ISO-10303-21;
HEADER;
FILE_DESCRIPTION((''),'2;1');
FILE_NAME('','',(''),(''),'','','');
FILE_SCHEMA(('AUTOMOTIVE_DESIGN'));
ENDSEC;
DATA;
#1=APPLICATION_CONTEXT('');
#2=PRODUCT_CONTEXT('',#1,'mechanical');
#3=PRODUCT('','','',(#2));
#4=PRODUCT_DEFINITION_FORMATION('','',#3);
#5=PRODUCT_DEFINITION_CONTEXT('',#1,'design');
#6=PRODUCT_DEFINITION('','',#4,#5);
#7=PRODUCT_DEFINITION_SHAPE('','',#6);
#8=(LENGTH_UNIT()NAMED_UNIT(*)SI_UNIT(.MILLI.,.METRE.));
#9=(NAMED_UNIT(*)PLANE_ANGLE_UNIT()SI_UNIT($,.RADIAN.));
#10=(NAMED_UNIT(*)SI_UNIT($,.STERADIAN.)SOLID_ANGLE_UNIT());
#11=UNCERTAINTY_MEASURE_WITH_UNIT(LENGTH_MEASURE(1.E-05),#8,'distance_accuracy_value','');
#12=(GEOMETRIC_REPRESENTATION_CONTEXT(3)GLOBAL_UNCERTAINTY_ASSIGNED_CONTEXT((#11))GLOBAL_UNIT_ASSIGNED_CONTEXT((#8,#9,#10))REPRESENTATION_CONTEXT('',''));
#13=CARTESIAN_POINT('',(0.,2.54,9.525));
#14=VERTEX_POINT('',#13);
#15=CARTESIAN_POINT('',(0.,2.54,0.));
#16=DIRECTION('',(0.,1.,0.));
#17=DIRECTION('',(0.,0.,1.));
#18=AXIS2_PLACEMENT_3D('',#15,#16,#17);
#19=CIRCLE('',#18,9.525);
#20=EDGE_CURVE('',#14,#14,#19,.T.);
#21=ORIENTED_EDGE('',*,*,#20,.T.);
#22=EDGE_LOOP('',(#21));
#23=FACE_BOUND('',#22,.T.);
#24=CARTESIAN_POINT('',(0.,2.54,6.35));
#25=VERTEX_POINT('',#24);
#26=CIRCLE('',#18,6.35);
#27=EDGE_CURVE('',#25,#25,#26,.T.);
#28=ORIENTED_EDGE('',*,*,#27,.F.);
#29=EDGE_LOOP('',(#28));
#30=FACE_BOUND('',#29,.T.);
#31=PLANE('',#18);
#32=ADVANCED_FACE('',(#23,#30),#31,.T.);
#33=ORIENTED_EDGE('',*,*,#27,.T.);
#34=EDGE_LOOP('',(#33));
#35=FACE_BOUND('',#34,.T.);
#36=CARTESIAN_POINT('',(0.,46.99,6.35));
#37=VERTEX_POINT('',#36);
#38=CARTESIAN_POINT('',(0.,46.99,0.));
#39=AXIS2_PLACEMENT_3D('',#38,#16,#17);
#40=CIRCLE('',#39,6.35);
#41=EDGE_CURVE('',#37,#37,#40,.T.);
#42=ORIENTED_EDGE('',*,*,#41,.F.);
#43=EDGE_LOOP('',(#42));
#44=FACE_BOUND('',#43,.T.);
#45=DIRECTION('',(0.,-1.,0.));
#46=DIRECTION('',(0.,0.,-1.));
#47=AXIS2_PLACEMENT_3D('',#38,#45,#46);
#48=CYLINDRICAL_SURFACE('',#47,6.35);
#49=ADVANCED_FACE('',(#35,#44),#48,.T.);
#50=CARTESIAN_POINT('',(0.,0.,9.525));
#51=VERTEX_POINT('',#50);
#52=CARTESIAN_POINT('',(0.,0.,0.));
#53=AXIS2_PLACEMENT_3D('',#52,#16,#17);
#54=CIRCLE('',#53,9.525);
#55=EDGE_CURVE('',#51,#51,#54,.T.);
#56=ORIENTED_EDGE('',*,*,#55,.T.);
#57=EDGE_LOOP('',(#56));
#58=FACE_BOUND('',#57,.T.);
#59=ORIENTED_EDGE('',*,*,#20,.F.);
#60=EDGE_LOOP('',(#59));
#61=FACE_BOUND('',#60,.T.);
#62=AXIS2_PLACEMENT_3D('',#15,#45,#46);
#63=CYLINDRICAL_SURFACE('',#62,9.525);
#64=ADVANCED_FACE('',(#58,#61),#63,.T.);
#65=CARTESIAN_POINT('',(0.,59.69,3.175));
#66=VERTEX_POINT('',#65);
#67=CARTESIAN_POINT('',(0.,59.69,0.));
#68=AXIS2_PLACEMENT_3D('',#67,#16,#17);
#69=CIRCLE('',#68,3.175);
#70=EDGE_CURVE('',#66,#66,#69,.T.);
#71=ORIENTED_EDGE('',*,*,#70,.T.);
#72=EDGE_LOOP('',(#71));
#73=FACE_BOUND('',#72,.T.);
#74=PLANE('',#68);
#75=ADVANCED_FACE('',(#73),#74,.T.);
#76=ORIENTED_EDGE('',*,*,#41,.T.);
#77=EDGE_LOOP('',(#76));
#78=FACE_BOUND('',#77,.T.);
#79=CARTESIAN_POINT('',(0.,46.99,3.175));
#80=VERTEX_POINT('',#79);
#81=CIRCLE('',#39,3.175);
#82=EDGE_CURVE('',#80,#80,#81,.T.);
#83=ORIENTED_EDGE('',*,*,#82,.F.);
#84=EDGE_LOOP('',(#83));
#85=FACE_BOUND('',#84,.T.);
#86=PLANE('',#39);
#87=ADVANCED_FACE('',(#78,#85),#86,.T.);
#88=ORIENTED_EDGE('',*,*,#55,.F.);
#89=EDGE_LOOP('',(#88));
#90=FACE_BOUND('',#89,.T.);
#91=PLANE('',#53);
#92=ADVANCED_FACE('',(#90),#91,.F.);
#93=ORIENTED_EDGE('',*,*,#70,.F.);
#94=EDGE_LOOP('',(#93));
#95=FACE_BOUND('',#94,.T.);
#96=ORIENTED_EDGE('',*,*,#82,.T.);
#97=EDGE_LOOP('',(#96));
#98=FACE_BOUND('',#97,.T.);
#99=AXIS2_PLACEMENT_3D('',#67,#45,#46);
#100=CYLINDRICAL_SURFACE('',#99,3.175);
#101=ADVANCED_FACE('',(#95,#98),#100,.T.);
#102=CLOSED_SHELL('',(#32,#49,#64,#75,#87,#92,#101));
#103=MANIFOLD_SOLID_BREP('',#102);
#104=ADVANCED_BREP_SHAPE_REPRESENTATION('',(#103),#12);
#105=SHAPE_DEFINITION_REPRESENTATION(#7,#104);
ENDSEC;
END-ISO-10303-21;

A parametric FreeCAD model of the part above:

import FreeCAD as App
import Part
import Sketcher
from FreeCAD import Vector
Q = App.Units.Quantity

doc = App.newDocument("Part")
body = doc.addObject("PartDesign::Body", "Body")

sketch1 = doc.addObject("Sketcher::SketchObject", "Sketch")
body.addObject(sketch1)
sketch1.AttachmentSupport = (doc.XZ_Plane, [""])
sketch1.MapMode = "FlatFace"
sketch1.addGeometry(Part.Circle(Vector(0, 0, 0), Vector(0, 0, 1), 10), False)
sketch1.addConstraint([
    Sketcher.Constraint("Coincident", 0, 3, -1, 1),
    Sketcher.Constraint("Diameter", 0, Q("0.75 in")),
])
pad1 = doc.addObject("PartDesign::Pad", "Pad")
body.addObject(pad1)
pad1.Profile = sketch1
pad1.Length = Q("0.1 in")
pad1.Reversed = True

sketch2 = doc.addObject("Sketcher::SketchObject", "Sketch001")
body.addObject(sketch2)
sketch2.AttachmentSupport = (doc.XZ_Plane, [""])
sketch2.MapMode = "FlatFace"
sketch2.AttachmentOffset = App.Placement(Vector(0, 0, -0.1 * 25.4), App.Rotation())
sketch2.addGeometry(Part.Circle(Vector(0, 0, 0), Vector(0, 0, 1), 6), False)
sketch2.addConstraint([
    Sketcher.Constraint("Coincident", 0, 3, -1, 1),
    Sketcher.Constraint("Diameter", 0, Q("0.5 in")),
])
pad2 = doc.addObject("PartDesign::Pad", "Pad001")
body.addObject(pad2)
pad2.Profile = sketch2
pad2.Length = Q("1.75 in")
pad2.Reversed = True

sketch3 = doc.addObject("Sketcher::SketchObject", "Sketch002")
body.addObject(sketch3)
sketch3.AttachmentSupport = (doc.XZ_Plane, [""])
sketch3.MapMode = "FlatFace"
sketch3.AttachmentOffset = App.Placement(Vector(0, 0, -1.85 * 25.4), App.Rotation())
sketch3.addGeometry(Part.Circle(Vector(0, 0, 0), Vector(0, 0, 1), 3.2), False)
sketch3.addConstraint([
    Sketcher.Constraint("Coincident", 0, 3, -1, 1),
    Sketcher.Constraint("Diameter", 0, Q("0.25 in")),
])
pad3 = doc.addObject("PartDesign::Pad", "Pad002")
body.addObject(pad3)
pad3.Profile = sketch3
pad3.Length = Q("0.5 in")
pad3.Reversed = True

doc.recompute()
